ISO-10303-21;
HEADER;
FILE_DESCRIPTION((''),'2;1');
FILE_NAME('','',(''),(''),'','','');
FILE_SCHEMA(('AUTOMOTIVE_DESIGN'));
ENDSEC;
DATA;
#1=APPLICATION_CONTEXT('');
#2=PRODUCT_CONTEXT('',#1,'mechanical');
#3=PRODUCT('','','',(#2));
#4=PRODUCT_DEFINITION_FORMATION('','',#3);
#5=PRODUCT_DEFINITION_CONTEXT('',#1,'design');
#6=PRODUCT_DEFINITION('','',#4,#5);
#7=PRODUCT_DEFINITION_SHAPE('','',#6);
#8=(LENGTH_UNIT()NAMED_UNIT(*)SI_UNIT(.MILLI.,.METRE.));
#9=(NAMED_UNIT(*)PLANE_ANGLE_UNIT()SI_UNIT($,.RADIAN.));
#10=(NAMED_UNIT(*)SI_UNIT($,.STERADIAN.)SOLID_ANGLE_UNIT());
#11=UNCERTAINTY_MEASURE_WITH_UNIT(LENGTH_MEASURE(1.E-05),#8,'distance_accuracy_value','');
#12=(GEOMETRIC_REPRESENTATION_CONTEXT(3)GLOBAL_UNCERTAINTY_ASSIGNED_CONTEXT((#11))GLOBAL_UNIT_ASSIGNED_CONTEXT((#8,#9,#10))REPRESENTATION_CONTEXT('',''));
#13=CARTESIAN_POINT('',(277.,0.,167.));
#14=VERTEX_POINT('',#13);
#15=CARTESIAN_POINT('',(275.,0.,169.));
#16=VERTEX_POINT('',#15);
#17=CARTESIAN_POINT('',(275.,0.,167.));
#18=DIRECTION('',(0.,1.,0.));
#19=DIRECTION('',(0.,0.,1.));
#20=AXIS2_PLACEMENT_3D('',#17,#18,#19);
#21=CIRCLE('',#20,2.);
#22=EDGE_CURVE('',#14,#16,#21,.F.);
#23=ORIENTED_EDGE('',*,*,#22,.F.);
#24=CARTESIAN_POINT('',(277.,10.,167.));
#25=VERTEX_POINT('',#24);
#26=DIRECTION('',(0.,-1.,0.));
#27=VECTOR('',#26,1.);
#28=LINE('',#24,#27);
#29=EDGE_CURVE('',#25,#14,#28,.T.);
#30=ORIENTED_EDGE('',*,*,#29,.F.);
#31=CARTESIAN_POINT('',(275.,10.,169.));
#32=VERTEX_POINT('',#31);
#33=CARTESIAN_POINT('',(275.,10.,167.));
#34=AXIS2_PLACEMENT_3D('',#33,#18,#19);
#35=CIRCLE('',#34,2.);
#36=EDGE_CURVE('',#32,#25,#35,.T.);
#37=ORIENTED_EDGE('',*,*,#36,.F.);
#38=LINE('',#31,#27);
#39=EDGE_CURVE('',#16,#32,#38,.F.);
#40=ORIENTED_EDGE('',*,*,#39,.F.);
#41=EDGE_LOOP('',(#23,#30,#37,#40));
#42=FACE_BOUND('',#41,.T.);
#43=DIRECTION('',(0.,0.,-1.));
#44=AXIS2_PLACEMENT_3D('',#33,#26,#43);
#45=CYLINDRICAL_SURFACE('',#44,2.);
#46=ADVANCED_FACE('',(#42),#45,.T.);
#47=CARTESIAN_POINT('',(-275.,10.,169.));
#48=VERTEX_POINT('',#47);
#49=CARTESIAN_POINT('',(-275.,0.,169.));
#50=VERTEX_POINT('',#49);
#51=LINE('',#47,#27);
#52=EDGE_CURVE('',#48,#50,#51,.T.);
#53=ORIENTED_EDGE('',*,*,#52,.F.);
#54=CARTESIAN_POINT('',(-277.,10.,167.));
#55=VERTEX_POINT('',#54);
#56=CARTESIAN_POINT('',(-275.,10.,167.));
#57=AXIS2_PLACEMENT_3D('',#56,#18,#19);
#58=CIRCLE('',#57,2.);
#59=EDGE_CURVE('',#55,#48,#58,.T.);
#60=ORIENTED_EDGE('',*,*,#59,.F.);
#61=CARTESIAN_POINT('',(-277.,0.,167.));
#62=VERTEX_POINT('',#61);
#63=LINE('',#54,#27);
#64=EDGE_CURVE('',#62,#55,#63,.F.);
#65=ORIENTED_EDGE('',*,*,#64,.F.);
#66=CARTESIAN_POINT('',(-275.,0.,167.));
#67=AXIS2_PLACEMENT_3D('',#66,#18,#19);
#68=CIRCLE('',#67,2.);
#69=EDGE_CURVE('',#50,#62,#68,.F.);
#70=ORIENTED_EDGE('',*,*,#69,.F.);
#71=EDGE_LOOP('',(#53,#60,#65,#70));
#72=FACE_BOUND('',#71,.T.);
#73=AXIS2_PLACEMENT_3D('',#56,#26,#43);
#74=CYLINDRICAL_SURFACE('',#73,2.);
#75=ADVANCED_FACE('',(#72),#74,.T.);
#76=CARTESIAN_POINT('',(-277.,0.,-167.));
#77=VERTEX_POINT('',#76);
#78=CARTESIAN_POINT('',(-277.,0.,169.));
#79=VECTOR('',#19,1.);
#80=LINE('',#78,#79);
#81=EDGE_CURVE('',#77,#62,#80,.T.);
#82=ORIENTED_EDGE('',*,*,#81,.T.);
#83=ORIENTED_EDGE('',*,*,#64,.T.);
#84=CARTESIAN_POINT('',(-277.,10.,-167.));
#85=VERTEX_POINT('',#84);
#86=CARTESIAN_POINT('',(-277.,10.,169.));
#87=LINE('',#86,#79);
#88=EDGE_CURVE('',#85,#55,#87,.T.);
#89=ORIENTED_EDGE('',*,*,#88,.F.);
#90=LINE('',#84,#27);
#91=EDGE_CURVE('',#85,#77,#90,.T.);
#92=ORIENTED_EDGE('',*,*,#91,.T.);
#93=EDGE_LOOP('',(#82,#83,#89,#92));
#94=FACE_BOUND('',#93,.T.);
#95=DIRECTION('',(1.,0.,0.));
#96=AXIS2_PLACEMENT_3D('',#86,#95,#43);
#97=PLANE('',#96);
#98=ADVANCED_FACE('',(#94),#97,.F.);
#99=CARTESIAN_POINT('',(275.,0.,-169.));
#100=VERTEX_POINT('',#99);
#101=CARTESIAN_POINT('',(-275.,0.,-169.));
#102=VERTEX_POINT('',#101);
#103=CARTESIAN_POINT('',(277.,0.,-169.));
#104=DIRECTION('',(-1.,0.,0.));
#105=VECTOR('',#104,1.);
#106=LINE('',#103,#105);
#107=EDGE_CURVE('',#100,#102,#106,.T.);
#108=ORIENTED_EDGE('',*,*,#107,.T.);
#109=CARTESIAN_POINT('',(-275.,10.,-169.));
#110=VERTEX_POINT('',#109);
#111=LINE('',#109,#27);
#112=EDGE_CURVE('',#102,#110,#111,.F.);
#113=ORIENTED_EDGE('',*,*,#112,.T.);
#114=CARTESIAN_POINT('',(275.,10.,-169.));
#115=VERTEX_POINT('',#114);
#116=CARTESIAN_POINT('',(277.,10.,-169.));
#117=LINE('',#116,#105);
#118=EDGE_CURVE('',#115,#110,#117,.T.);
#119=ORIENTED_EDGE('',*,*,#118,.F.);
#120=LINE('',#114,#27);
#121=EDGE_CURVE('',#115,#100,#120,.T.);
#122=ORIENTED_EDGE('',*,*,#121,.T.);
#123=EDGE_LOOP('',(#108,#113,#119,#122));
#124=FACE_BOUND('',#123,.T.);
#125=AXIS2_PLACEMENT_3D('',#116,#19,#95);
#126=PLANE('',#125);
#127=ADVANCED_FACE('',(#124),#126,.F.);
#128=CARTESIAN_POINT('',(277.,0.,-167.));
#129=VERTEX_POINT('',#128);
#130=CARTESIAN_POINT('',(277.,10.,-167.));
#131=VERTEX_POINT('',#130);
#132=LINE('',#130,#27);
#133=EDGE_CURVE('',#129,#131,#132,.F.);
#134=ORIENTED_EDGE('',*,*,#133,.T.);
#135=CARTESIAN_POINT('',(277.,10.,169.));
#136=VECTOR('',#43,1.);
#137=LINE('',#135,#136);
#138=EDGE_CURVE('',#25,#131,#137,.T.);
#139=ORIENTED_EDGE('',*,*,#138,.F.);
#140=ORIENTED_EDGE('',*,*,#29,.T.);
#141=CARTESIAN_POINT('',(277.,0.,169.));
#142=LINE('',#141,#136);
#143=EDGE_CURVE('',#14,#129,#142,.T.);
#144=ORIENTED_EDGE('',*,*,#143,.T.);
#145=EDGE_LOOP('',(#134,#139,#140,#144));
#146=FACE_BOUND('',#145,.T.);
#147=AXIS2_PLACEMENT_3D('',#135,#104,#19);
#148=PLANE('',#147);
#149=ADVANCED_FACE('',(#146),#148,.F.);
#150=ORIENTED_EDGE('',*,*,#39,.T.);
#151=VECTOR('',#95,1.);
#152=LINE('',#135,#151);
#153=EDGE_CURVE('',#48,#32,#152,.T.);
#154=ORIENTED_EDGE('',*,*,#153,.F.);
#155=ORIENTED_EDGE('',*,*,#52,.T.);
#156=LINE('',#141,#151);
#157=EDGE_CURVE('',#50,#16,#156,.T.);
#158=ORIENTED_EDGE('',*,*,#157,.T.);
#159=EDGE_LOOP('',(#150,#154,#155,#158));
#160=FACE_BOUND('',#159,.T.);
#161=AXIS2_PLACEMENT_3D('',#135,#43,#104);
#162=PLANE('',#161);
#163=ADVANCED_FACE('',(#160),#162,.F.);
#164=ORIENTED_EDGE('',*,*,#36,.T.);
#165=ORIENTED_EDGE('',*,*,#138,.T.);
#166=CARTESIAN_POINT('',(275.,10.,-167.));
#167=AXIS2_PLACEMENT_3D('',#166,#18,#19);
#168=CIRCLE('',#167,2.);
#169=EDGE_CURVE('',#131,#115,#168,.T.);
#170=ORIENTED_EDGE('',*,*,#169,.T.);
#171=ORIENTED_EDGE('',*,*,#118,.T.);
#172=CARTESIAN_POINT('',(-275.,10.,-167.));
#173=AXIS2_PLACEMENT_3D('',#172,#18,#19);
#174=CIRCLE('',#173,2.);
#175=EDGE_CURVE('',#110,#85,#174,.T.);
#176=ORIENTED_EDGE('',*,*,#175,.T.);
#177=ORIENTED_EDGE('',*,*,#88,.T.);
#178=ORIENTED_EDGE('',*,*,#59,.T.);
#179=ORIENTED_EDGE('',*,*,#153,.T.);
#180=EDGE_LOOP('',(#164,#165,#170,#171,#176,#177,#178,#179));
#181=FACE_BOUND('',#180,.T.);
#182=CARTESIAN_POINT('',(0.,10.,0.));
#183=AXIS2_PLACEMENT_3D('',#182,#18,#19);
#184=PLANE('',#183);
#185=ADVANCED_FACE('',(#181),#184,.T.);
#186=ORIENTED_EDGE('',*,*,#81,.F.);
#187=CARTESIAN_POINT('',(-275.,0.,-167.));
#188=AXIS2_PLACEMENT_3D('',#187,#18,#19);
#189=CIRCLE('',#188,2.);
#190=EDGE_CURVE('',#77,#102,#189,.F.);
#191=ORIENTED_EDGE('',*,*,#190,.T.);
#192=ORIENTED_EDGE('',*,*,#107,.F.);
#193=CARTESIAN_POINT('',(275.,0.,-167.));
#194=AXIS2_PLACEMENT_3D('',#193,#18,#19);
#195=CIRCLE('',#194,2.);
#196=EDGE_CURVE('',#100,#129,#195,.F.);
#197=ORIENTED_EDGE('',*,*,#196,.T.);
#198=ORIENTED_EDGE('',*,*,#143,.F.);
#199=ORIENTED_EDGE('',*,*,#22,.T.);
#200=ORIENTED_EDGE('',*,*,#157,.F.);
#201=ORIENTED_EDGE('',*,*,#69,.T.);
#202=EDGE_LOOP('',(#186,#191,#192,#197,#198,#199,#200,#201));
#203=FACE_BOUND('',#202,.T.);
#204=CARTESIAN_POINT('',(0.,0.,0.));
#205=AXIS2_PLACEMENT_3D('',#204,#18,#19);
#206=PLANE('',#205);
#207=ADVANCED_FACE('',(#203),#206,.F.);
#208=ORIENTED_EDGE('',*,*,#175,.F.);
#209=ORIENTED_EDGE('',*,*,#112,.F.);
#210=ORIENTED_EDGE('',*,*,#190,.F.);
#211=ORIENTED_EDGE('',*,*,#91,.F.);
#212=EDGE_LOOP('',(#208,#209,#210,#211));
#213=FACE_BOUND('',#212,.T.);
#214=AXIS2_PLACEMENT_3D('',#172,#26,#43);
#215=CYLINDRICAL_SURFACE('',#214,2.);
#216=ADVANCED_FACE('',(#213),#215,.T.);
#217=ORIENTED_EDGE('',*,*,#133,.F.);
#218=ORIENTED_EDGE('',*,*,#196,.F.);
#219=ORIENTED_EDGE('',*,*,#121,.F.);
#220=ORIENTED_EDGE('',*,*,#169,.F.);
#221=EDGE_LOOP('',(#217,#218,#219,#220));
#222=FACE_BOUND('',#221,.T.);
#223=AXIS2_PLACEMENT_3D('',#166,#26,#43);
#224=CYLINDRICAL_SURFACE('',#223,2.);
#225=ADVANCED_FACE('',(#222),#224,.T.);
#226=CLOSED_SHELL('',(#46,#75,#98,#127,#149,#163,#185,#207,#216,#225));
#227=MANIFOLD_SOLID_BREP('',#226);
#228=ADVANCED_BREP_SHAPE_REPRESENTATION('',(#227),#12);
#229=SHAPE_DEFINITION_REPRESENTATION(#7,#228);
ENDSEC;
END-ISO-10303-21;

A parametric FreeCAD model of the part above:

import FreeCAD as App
import Part
import Sketcher

V = App.Vector


def edges_at(feature, points):
    """Names of the edges that pass closest to the given points."""
    edges = feature.Shape.Edges
    near = lambda p: min(range(len(edges)), key=lambda i: edges[i].distToShape(Part.Vertex(*p))[0])
    return sorted({f"Edge{near(p) + 1}" for p in points})

doc = App.newDocument("Part")
params = doc.addObject("Spreadsheet::Sheet", "Params")
for row, (alias, value) in enumerate([
    ("sketch1_width", "554 mm"),
    ("sketch1_height", "338 mm"),
    ("pad1_length", "10 mm"),
    ("fillet_radius", "2 mm"),
], start=1):
    params.set(f"A{row}", alias)
    params.set(f"B{row}", "=" + value)
    params.setAlias(f"B{row}", alias)

body = doc.addObject("PartDesign::Body", "Body")

sketch1 = body.newObject("Sketcher::SketchObject", "Sketch")
sketch1.AttachmentSupport = (doc.getObject("XZ_Plane"), [""])
sketch1.MapMode = "FlatFace"
sketch1.addGeometry(Part.LineSegment(V(-277, -169, 0), V(-277, 169, 0)), False)
sketch1.addGeometry(Part.LineSegment(V(-277, 169, 0), V(277, 169, 0)), False)
sketch1.addGeometry(Part.LineSegment(V(277, 169, 0), V(277, -169, 0)), False)
sketch1.addGeometry(Part.LineSegment(V(277, -169, 0), V(-277, -169, 0)), False)
sketch1.addConstraint(Sketcher.Constraint("Coincident", 0, 2, 1, 1))
sketch1.addConstraint(Sketcher.Constraint("Coincident", 1, 2, 2, 1))
sketch1.addConstraint(Sketcher.Constraint("Coincident", 2, 2, 3, 1))
sketch1.addConstraint(Sketcher.Constraint("Coincident", 3, 2, 0, 1))
sketch1.addConstraint(Sketcher.Constraint("Vertical", 0))
sketch1.addConstraint(Sketcher.Constraint("Horizontal", 1))
sketch1.addConstraint(Sketcher.Constraint("Vertical", 2))
sketch1.addConstraint(Sketcher.Constraint("Horizontal", 3))
sketch1.addConstraint(Sketcher.Constraint("Symmetric", 0, 2, 2, 2, -1, 1))
sketch1.addConstraint(Sketcher.Constraint("DistanceX", 1, 1, 1, 2, 554.0))
sketch1.addConstraint(Sketcher.Constraint("DistanceY", 0, 1, 0, 2, 338.0))
sketch1.setExpression("Constraints[9]", "Params.sketch1_width")
sketch1.setExpression("Constraints[10]", "Params.sketch1_height")
pad1 = body.newObject("PartDesign::Pad", "Pad")
pad1.Profile = sketch1
pad1.setExpression("Length", "Params.pad1_length")
pad1.Reversed = True
doc.recompute()

fillet = body.newObject("PartDesign::Fillet", "Fillet")
fillet.Base = (pad1, edges_at(pad1, [
    (-277, 5, -169),
    (277, 5, -169),
    (277, 5, 169),
    (-277, 5, 169),
]))
fillet.setExpression("Radius", "Params.fillet_radius")

doc.recompute()
